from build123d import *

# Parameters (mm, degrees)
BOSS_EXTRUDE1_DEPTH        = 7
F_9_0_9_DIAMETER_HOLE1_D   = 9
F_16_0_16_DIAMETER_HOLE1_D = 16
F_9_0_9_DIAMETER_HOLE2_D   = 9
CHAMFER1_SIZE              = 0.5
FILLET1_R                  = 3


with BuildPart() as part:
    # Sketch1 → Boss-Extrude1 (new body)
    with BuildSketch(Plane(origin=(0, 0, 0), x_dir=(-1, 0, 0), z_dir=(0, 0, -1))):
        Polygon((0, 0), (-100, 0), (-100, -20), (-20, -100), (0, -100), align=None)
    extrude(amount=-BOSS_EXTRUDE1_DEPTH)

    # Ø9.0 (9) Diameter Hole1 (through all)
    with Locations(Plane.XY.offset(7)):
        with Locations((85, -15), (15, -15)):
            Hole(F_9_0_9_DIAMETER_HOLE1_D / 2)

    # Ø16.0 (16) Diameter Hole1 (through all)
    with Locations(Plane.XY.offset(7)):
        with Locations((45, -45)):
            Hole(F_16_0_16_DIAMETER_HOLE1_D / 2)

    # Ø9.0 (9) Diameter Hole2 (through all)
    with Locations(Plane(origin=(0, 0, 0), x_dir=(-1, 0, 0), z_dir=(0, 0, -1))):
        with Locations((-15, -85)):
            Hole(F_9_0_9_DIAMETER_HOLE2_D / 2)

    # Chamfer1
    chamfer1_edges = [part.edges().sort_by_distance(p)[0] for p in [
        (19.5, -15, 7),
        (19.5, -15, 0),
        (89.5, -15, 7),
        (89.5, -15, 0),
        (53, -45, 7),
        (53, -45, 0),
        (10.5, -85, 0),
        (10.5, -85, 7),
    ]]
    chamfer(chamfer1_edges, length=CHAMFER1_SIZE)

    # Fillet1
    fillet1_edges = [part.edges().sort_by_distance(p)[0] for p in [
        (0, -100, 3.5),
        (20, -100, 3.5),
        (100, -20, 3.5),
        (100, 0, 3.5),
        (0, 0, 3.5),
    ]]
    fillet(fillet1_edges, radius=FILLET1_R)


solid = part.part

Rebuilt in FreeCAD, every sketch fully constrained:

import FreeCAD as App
import Part
import Sketcher

V = App.Vector
Q = App.Units.Quantity


def edges_at(feature, points):
    """Names of the edges that pass closest to the given points."""
    edges = feature.Shape.Edges
    near = lambda p: min(range(len(edges)), key=lambda i: edges[i].distToShape(Part.Vertex(*p))[0])
    return sorted({f"Edge{near(p) + 1}" for p in points})

doc = App.newDocument("Part")
body = doc.addObject("PartDesign::Body", "Body")

# Sketch on XY plane
sketch1 = doc.addObject("Sketcher::SketchObject", "Sketch")
body.addObject(sketch1)
sketch1.AttachmentSupport = (doc.XY_Plane, [""])
sketch1.MapMode = "FlatFace"
sketch1.addGeometry([
    Part.LineSegment(V(0, 0, 0), V(100, 0, 0)),  # 0
    Part.LineSegment(V(100, 0, 0), V(100, -20, 0)),  # 1
    Part.LineSegment(V(100, -20, 0), V(20, -100, 0)),  # 2
    Part.LineSegment(V(20, -100, 0), V(0, -100, 0)),  # 3
    Part.LineSegment(V(0, -100, 0), V(0, 0, 0)),  # 4
], False)
sketch1.addConstraint([
    Sketcher.Constraint("Coincident", 0, 2, 1, 1),
    Sketcher.Constraint("Coincident", 1, 2, 2, 1),
    Sketcher.Constraint("Coincident", 2, 2, 3, 1),
    Sketcher.Constraint("Coincident", 3, 2, 4, 1),
    Sketcher.Constraint("Coincident", 4, 2, 0, 1),
    Sketcher.Constraint("Horizontal", 0),
    Sketcher.Constraint("Vertical", 1),
    Sketcher.Constraint("Horizontal", 3),
    Sketcher.Constraint("Vertical", 4),
    Sketcher.Constraint("Coincident", 4, 2, -1, 1),
    Sketcher.Constraint("Equal", 3, 1),
    Sketcher.Constraint("Equal", 0, 4),
    Sketcher.Constraint("DistanceX", 0, 1, 0, 2, Q("100 mm")),
    Sketcher.Constraint("DistanceX", 3, 2, 3, 1, Q("20 mm")),
])
pad1 = doc.addObject("PartDesign::Pad", "Pad")
body.addObject(pad1)
pad1.Profile = sketch1
pad1.Length = 7

# Sketch on XY plane
sketch2 = doc.addObject("Sketcher::SketchObject", "Sketch001")
body.addObject(sketch2)
sketch2.AttachmentSupport = (doc.XY_Plane, [""])
sketch2.MapMode = "FlatFace"
sketch2.AttachmentOffset = App.Placement(V(0, 0, 7), App.Rotation())
sketch2.addGeometry([
    Part.Circle(V(85, -15, 0), V(0, 0, 1), 4.5),
    Part.Circle(V(15, -15, 0), V(0, 0, 1), 4.5),
], False)
sketch2.addConstraint([
    Sketcher.Constraint("Equal", 0, 1),
    Sketcher.Constraint("Horizontal", 0, 3, 1, 3),
    Sketcher.Constraint("Diameter", 0, Q("9 mm")),
    Sketcher.Constraint("DistanceX", -1, 1, 0, 3, Q("85 mm")),
    Sketcher.Constraint("DistanceY", 0, 3, -1, 1, Q("15 mm")),
    Sketcher.Constraint("DistanceX", -1, 1, 1, 3, Q("15 mm")),
])
doc.recompute()
hole = doc.addObject("PartDesign::Hole", "Hole")
body.addObject(hole)
hole.Profile = sketch2
hole.ThreadType = "None"
hole.Diameter = 9
hole.DepthType = "ThroughAll"

# Sketch on XY plane
sketch3 = doc.addObject("Sketcher::SketchObject", "Sketch002")
body.addObject(sketch3)
sketch3.AttachmentSupport = (doc.XY_Plane, [""])
sketch3.MapMode = "FlatFace"
sketch3.AttachmentOffset = App.Placement(V(0, 0, 7), App.Rotation())
sketch3.addGeometry(Part.Circle(V(45, -45, 0), V(0, 0, 1), 8), False)
sketch3.addConstraint([
    Sketcher.Constraint("Diameter", 0, Q("16 mm")),
    Sketcher.Constraint("DistanceX", -1, 1, 0, 3, Q("45 mm")),
    Sketcher.Constraint("DistanceY", 0, 3, -1, 1, Q("45 mm")),
])
doc.recompute()
hole2 = doc.addObject("PartDesign::Hole", "Hole001")
body.addObject(hole2)
hole2.Profile = sketch3
hole2.ThreadType = "None"
hole2.Diameter = 16
hole2.DepthType = "ThroughAll"

# Sketch on XY plane
sketch4 = doc.addObject("Sketcher::SketchObject", "Sketch003")
body.addObject(sketch4)
sketch4.AttachmentSupport = (doc.XY_Plane, [""])
sketch4.MapMode = "FlatFace"
sketch4.addGeometry(Part.Circle(V(15, -85, 0), V(0, 0, 1), 4.5), False)
sketch4.addConstraint([
    Sketcher.Constraint("Diameter", 0, Q("9 mm")),
    Sketcher.Constraint("DistanceX", -1, 1, 0, 3, Q("15 mm")),
    Sketcher.Constraint("DistanceY", 0, 3, -1, 1, Q("85 mm")),
])
doc.recompute()
hole3 = doc.addObject("PartDesign::Hole", "Hole002")
body.addObject(hole3)
hole3.Profile = sketch4
hole3.ThreadType = "None"
hole3.Diameter = 9
hole3.DepthType = "ThroughAll"
hole3.Reversed = True
doc.recompute()

chamfer = doc.addObject("PartDesign::Chamfer", "Chamfer")
body.addObject(chamfer)
chamfer.Base = (hole3, edges_at(hole3, [
    (19.5, -15, 7),
    (19.5, -15, 0),
    (89.5, -15, 7),
    (89.5, -15, 0),
    (53, -45, 7),
    (53, -45, 0),
    (10.5, -85, 0),
    (10.5, -85, 7),
]))
chamfer.Size = 0.5
doc.recompute()

fillet = doc.addObject("PartDesign::Fillet", "Fillet")
body.addObject(fillet)
fillet.Base = (chamfer, edges_at(chamfer, [
    (0, -100, 3.5),
    (20, -100, 3.5),
    (100, -20, 3.5),
    (100, 0, 3.5),
    (0, 0, 3.5),
]))
fillet.Radius = 3

doc.recompute()
